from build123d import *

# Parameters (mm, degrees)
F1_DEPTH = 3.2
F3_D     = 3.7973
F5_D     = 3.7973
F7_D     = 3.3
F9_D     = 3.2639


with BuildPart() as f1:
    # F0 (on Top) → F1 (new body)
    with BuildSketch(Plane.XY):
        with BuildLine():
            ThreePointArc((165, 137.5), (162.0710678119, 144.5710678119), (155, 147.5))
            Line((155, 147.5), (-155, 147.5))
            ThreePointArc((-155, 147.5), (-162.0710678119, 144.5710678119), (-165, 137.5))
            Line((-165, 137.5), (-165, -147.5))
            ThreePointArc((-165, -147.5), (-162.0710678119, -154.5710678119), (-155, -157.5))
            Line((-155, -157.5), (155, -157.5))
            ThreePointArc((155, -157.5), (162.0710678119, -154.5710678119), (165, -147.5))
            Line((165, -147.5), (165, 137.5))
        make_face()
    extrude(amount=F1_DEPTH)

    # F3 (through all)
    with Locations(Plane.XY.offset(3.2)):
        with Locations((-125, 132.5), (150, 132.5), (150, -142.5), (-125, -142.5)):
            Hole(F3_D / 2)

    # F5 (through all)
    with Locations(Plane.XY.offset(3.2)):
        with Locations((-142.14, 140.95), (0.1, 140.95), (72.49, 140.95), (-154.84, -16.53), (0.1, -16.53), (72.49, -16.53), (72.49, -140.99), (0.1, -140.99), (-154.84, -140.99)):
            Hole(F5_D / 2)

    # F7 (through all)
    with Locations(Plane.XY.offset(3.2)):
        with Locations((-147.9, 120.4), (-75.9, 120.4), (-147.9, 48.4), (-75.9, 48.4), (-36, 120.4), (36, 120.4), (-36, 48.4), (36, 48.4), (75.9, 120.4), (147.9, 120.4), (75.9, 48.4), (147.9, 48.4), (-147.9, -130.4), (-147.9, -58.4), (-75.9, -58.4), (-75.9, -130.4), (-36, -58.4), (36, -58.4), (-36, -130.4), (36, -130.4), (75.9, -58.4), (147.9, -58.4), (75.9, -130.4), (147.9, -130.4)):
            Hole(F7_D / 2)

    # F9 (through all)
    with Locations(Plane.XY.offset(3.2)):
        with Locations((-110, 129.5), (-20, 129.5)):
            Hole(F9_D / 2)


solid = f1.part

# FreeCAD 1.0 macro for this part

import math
import FreeCAD as App
import Part
import Sketcher
Q = App.Units.Quantity

doc = App.newDocument("Part")
body = doc.addObject("PartDesign::Body", "Body")

sketch1 = body.newObject("Sketcher::SketchObject", "Sketch")
sketch1.AttachmentSupport = (doc.getObject("XY_Plane"), [""])
sketch1.MapMode = "FlatFace"
sketch1.addGeometry([
    Part.ArcOfCircle(Part.Circle(App.Vector(155, 137.5, 0), App.Vector(0, 0, 1), 10), math.radians(0), math.radians(90)),
    Part.LineSegment(App.Vector(155, 147.5, 0), App.Vector(-155, 147.5, 0)),
    Part.ArcOfCircle(Part.Circle(App.Vector(-155, 137.5, 0), App.Vector(0, 0, 1), 10), math.radians(90), math.radians(180)),
    Part.LineSegment(App.Vector(-165, 137.5, 0), App.Vector(-165, -147.5, 0)),
    Part.ArcOfCircle(Part.Circle(App.Vector(-155, -147.5, 0), App.Vector(0, 0, 1), 10), math.radians(180), math.radians(270)),
    Part.LineSegment(App.Vector(-155, -157.5, 0), App.Vector(155, -157.5, 0)),
    Part.ArcOfCircle(Part.Circle(App.Vector(155, -147.5, 0), App.Vector(0, 0, 1), 10), math.radians(-90), math.radians(0)),
    Part.LineSegment(App.Vector(165, -147.5, 0), App.Vector(165, 137.5, 0)),
], False)
sketch1.addConstraint([
    Sketcher.Constraint("Tangent", 0, 2, 1, 1),
    Sketcher.Constraint("Tangent", 1, 2, 2, 1),
    Sketcher.Constraint("Tangent", 2, 2, 3, 1),
    Sketcher.Constraint("Tangent", 3, 2, 4, 1),
    Sketcher.Constraint("Tangent", 4, 2, 5, 1),
    Sketcher.Constraint("Tangent", 5, 2, 6, 1),
    Sketcher.Constraint("Tangent", 6, 2, 7, 1),
    Sketcher.Constraint("Tangent", 7, 2, 0, 1),
    Sketcher.Constraint("Horizontal", 1),
    Sketcher.Constraint("Vertical", 3),
    Sketcher.Constraint("Horizontal", 5),
    Sketcher.Constraint("Vertical", 7),
    Sketcher.Constraint("Equal", 0, 2),
    Sketcher.Constraint("Equal", 2, 4),
    Sketcher.Constraint("Equal", 4, 6),
    Sketcher.Constraint("Radius", 0, Q("10 mm")),
    Sketcher.Constraint("DistanceX", 1, 2, 1, 1, Q("310 mm")),
    Sketcher.Constraint("DistanceY", 3, 2, 3, 1, Q("285 mm")),
    Sketcher.Constraint("DistanceX", -1, 1, 0, 3, Q("155 mm")),
    Sketcher.Constraint("DistanceY", -1, 1, 0, 3, Q("137.5 mm")),
])
pad1 = body.newObject("PartDesign::Pad", "Pad")
pad1.Profile = sketch1
pad1.Length = 3.2

sketch2 = body.newObject("Sketcher::SketchObject", "Sketch001")
sketch2.AttachmentSupport = (doc.getObject("XY_Plane"), [""])
sketch2.MapMode = "FlatFace"
sketch2.AttachmentOffset = App.Placement(App.Vector(0, 0, 3.2), App.Rotation())
sketch2.addGeometry([
    Part.Circle(App.Vector(-125, 132.5, 0), App.Vector(0, 0, 1), 1.89865),
    Part.Circle(App.Vector(150, 132.5, 0), App.Vector(0, 0, 1), 1.89865),
    Part.Circle(App.Vector(150, -142.5, 0), App.Vector(0, 0, 1), 1.89865),
    Part.Circle(App.Vector(-125, -142.5, 0), App.Vector(0, 0, 1), 1.89865),
], False)
sketch2.addConstraint([
    Sketcher.Constraint("Equal", 0, 1),
    Sketcher.Constraint("Equal", 1, 2),
    Sketcher.Constraint("Equal", 2, 3),
    Sketcher.Constraint("Horizontal", 0, 3, 1, 3),
    Sketcher.Constraint("Horizontal", 2, 3, 3, 3),
    Sketcher.Constraint("Vertical", 1, 3, 2, 3),
    Sketcher.Constraint("Vertical", 0, 3, 3, 3),
    Sketcher.Constraint("DistanceX", 0, 3, -1, 1, Q("125 mm")),
    Sketcher.Constraint("DistanceX", -1, 1, 1, 3, Q("150 mm")),
    Sketcher.Constraint("DistanceY", 2, 3, 1, 3, Q("275 mm")),
    Sketcher.Constraint("Diameter", 0, Q("3.7973 mm")),
    Sketcher.Constraint("DistanceY", -1, 1, 0, 3, Q("132.5 mm")),
])
doc.recompute()
hole = body.newObject("PartDesign::Hole", "Hole")
hole.Profile = sketch2
hole.ThreadType = "None"
hole.Diameter = 3.7973
hole.DepthType = "ThroughAll"

sketch3 = body.newObject("Sketcher::SketchObject", "Sketch002")
sketch3.AttachmentSupport = (doc.getObject("XY_Plane"), [""])
sketch3.MapMode = "FlatFace"
sketch3.AttachmentOffset = App.Placement(App.Vector(0, 0, 3.2), App.Rotation())
sketch3.addGeometry([
    Part.Circle(App.Vector(-142.14, 140.95, 0), App.Vector(0, 0, 1), 1.89865),
    Part.Circle(App.Vector(0.1, 140.95, 0), App.Vector(0, 0, 1), 1.89865),
    Part.Circle(App.Vector(72.49, 140.95, 0), App.Vector(0, 0, 1), 1.89865),
    Part.Circle(App.Vector(-154.84, -16.53, 0), App.Vector(0, 0, 1), 1.89865),
    Part.Circle(App.Vector(0.1, -16.53, 0), App.Vector(0, 0, 1), 1.89865),
    Part.Circle(App.Vector(72.49, -16.53, 0), App.Vector(0, 0, 1), 1.89865),
    Part.Circle(App.Vector(72.49, -140.99, 0), App.Vector(0, 0, 1), 1.89865),
    Part.Circle(App.Vector(0.1, -140.99, 0), App.Vector(0, 0, 1), 1.89865),
    Part.Circle(App.Vector(-154.84, -140.99, 0), App.Vector(0, 0, 1), 1.89865),
], False)
sketch3.addConstraint([
    Sketcher.Constraint("Equal", 0, 1),
    Sketcher.Constraint("Equal", 1, 2),
    Sketcher.Constraint("Equal", 2, 3),
    Sketcher.Constraint("Equal", 3, 4),
    Sketcher.Constraint("Equal", 4, 5),
    Sketcher.Constraint("Equal", 5, 6),
    Sketcher.Constraint("Equal", 6, 7),
    Sketcher.Constraint("Equal", 7, 8),
    Sketcher.Constraint("Horizontal", 0, 3, 1, 3),
    Sketcher.Constraint("Horizontal", 1, 3, 2, 3),
    Sketcher.Constraint("Horizontal", 3, 3, 4, 3),
    Sketcher.Constraint("Horizontal", 4, 3, 5, 3),
    Sketcher.Constraint("Horizontal", 6, 3, 7, 3),
    Sketcher.Constraint("Horizontal", 7, 3, 8, 3),
    Sketcher.Constraint("Vertical", 1, 3, 4, 3),
    Sketcher.Constraint("Vertical", 2, 3, 5, 3),
    Sketcher.Constraint("Vertical", 5, 3, 6, 3),
    Sketcher.Constraint("Vertical", 4, 3, 7, 3),
    Sketcher.Constraint("Vertical", 3, 3, 8, 3),
    Sketcher.Constraint("Diameter", 0, Q("3.7973 mm")),
    Sketcher.Constraint("DistanceX", -1, 1, 1, 3, Q("0.1 mm")),
    Sketcher.Constraint("DistanceX", 3, 3, 0, 3, Q("12.7 mm")),
    Sketcher.Constraint("DistanceX", 0, 3, -1, 1, Q("142.14 mm")),
    Sketcher.Constraint("DistanceY", -1, 1, 0, 3, Q("140.95 mm")),
    Sketcher.Constraint("DistanceX", -1, 1, 2, 3, Q("72.49 mm")),
    Sketcher.Constraint("DistanceY", 3, 3, -1, 1, Q("16.53 mm")),
    Sketcher.Constraint("DistanceY", 6, 3, -1, 1, Q("140.99 mm")),
])
doc.recompute()
hole2 = body.newObject("PartDesign::Hole", "Hole001")
hole2.Profile = sketch3
hole2.ThreadType = "None"
hole2.Diameter = 3.7973
hole2.DepthType = "ThroughAll"

sketch4 = body.newObject("Sketcher::SketchObject", "Sketch003")
sketch4.AttachmentSupport = (doc.getObject("XY_Plane"), [""])
sketch4.MapMode = "FlatFace"
sketch4.AttachmentOffset = App.Placement(App.Vector(0, 0, 3.2), App.Rotation())
sketch4.addGeometry([
    Part.Circle(App.Vector(-147.9, 120.4, 0), App.Vector(0, 0, 1), 1.65),
    Part.Circle(App.Vector(-75.9, 120.4, 0), App.Vector(0, 0, 1), 1.65),
    Part.Circle(App.Vector(-147.9, 48.4, 0), App.Vector(0, 0, 1), 1.65),
    Part.Circle(App.Vector(-75.9, 48.4, 0), App.Vector(0, 0, 1), 1.65),
    Part.Circle(App.Vector(-36, 120.4, 0), App.Vector(0, 0, 1), 1.65),
    Part.Circle(App.Vector(36, 120.4, 0), App.Vector(0, 0, 1), 1.65),
    Part.Circle(App.Vector(-36, 48.4, 0), App.Vector(0, 0, 1), 1.65),
    Part.Circle(App.Vector(36, 48.4, 0), App.Vector(0, 0, 1), 1.65),
    Part.Circle(App.Vector(75.9, 120.4, 0), App.Vector(0, 0, 1), 1.65),
    Part.Circle(App.Vector(147.9, 120.4, 0), App.Vector(0, 0, 1), 1.65),
    Part.Circle(App.Vector(75.9, 48.4, 0), App.Vector(0, 0, 1), 1.65),
    Part.Circle(App.Vector(147.9, 48.4, 0), App.Vector(0, 0, 1), 1.65),
    Part.Circle(App.Vector(-147.9, -130.4, 0), App.Vector(0, 0, 1), 1.65),
    Part.Circle(App.Vector(-147.9, -58.4, 0), App.Vector(0, 0, 1), 1.65),
    Part.Circle(App.Vector(-75.9, -58.4, 0), App.Vector(0, 0, 1), 1.65),
    Part.Circle(App.Vector(-75.9, -130.4, 0), App.Vector(0, 0, 1), 1.65),
    Part.Circle(App.Vector(-36, -58.4, 0), App.Vector(0, 0, 1), 1.65),
    Part.Circle(App.Vector(36, -58.4, 0), App.Vector(0, 0, 1), 1.65),
    Part.Circle(App.Vector(-36, -130.4, 0), App.Vector(0, 0, 1), 1.65),
    Part.Circle(App.Vector(36, -130.4, 0), App.Vector(0, 0, 1), 1.65),
    Part.Circle(App.Vector(75.9, -58.4, 0), App.Vector(0, 0, 1), 1.65),
    Part.Circle(App.Vector(147.9, -58.4, 0), App.Vector(0, 0, 1), 1.65),
    Part.Circle(App.Vector(75.9, -130.4, 0), App.Vector(0, 0, 1), 1.65),
    Part.Circle(App.Vector(147.9, -130.4, 0), App.Vector(0, 0, 1), 1.65),
], False)
sketch4.addConstraint([
    Sketcher.Constraint("Equal", 0, 1),
    Sketcher.Constraint("Equal", 1, 2),
    Sketcher.Constraint("Equal", 2, 3),
    Sketcher.Constraint("Equal", 3, 4),
    Sketcher.Constraint("Equal", 4, 5),
    Sketcher.Constraint("Equal", 5, 6),
    Sketcher.Constraint("Equal", 6, 7),
    Sketcher.Constraint("Equal", 7, 8),
    Sketcher.Constraint("Equal", 8, 9),
    Sketcher.Constraint("Equal", 9, 10),
    Sketcher.Constraint("Equal", 10, 11),
    Sketcher.Constraint("Equal", 11, 12),
    Sketcher.Constraint("Equal", 12, 13),
    Sketcher.Constraint("Equal", 13, 14),
    Sketcher.Constraint("Equal", 14, 15),
    Sketcher.Constraint("Equal", 15, 16),
    Sketcher.Constraint("Equal", 16, 17),
    Sketcher.Constraint("Equal", 17, 18),
    Sketcher.Constraint("Equal", 18, 19),
    Sketcher.Constraint("Equal", 19, 20),
    Sketcher.Constraint("Equal", 20, 21),
    Sketcher.Constraint("Equal", 21, 22),
    Sketcher.Constraint("Equal", 22, 23),
    Sketcher.Constraint("Symmetric", 4, 3, 5, 3, -2),
    Sketcher.Constraint("Symmetric", 6, 3, 7, 3, -2),
    Sketcher.Constraint("Symmetric", 1, 3, 8, 3, -2),
    Sketcher.Constraint("Symmetric", 0, 3, 9, 3, -2),
    Sketcher.Constraint("Symmetric", 3, 3, 10, 3, -2),
    Sketcher.Constraint("Symmetric", 2, 3, 11, 3, -2),
    Sketcher.Constraint("Symmetric", 16, 3, 17, 3, -2),
    Sketcher.Constraint("Symmetric", 18, 3, 19, 3, -2),
    Sketcher.Constraint("Symmetric", 14, 3, 20, 3, -2),
    Sketcher.Constraint("Symmetric", 13, 3, 21, 3, -2),
    Sketcher.Constraint("Symmetric", 15, 3, 22, 3, -2),
    Sketcher.Constraint("Symmetric", 12, 3, 23, 3, -2),
    Sketcher.Constraint("Horizontal", 0, 3, 1, 3),
    Sketcher.Constraint("Horizontal", 2, 3, 3, 3),
    Sketcher.Constraint("Horizontal", 1, 3, 4, 3),
    Sketcher.Constraint("Horizontal", 3, 3, 6, 3),
    Sketcher.Constraint("Horizontal", 13, 3, 14, 3),
    Sketcher.Constraint("Horizontal", 12, 3, 15, 3),
    Sketcher.Constraint("Horizontal", 14, 3, 16, 3),
    Sketcher.Constraint("Horizontal", 15, 3, 18, 3),
    Sketcher.Constraint("Vertical", 0, 3, 2, 3),
    Sketcher.Constraint("Vertical", 1, 3, 3, 3),
    Sketcher.Constraint("Vertical", 4, 3, 6, 3),
    Sketcher.Constraint("Vertical", 2, 3, 12, 3),
    Sketcher.Constraint("Vertical", 12, 3, 13, 3),
    Sketcher.Constraint("Vertical", 3, 3, 14, 3),
    Sketcher.Constraint("Vertical", 14, 3, 15, 3),
    Sketcher.Constraint("Vertical", 6, 3, 16, 3),
    Sketcher.Constraint("Vertical", 16, 3, 18, 3),
    Sketcher.Constraint("Diameter", 0, Q("3.3 mm")),
    Sketcher.Constraint("DistanceX", 4, 3, -1, 1, Q("36 mm")),
    Sketcher.Constraint("DistanceX", 0, 3, 1, 3, Q("72 mm")),
    Sketcher.Constraint("DistanceY", 2, 3, 0, 3, Q("72 mm")),
    Sketcher.Constraint("DistanceY", 12, 3, 13, 3, Q("72 mm")),
    Sketcher.Constraint("DistanceX", 0, 3, -1, 1, Q("147.9 mm")),
    Sketcher.Constraint("DistanceY", -1, 1, 0, 3, Q("120.4 mm")),
    Sketcher.Constraint("DistanceY", 12, 3, -1, 1, Q("130.4 mm")),
])
doc.recompute()
hole3 = body.newObject("PartDesign::Hole", "Hole002")
hole3.Profile = sketch4
hole3.ThreadType = "None"
hole3.Diameter = 3.3
hole3.DepthType = "ThroughAll"

sketch5 = body.newObject("Sketcher::SketchObject", "Sketch004")
sketch5.AttachmentSupport = (doc.getObject("XY_Plane"), [""])
sketch5.MapMode = "FlatFace"
sketch5.AttachmentOffset = App.Placement(App.Vector(0, 0, 3.2), App.Rotation())
sketch5.addGeometry([
    Part.Circle(App.Vector(-110, 129.5, 0), App.Vector(0, 0, 1), 1.63195),
    Part.Circle(App.Vector(-20, 129.5, 0), App.Vector(0, 0, 1), 1.63195),
], False)
sketch5.addConstraint([
    Sketcher.Constraint("Equal", 0, 1),
    Sketcher.Constraint("Horizontal", 0, 3, 1, 3),
    Sketcher.Constraint("DistanceX", 0, 3, -1, 1, Q("110 mm")),
    Sketcher.Constraint("DistanceX", 1, 3, -1, 1, Q("20 mm")),
    Sketcher.Constraint("Diameter", 0, Q("3.2639 mm")),
    Sketcher.Constraint("DistanceY", -1, 1, 0, 3, Q("129.5 mm")),
])
doc.recompute()
hole4 = body.newObject("PartDesign::Hole", "Hole003")
hole4.Profile = sketch5
hole4.ThreadType = "None"
hole4.Diameter = 3.2639
hole4.DepthType = "ThroughAll"

doc.recompute()
